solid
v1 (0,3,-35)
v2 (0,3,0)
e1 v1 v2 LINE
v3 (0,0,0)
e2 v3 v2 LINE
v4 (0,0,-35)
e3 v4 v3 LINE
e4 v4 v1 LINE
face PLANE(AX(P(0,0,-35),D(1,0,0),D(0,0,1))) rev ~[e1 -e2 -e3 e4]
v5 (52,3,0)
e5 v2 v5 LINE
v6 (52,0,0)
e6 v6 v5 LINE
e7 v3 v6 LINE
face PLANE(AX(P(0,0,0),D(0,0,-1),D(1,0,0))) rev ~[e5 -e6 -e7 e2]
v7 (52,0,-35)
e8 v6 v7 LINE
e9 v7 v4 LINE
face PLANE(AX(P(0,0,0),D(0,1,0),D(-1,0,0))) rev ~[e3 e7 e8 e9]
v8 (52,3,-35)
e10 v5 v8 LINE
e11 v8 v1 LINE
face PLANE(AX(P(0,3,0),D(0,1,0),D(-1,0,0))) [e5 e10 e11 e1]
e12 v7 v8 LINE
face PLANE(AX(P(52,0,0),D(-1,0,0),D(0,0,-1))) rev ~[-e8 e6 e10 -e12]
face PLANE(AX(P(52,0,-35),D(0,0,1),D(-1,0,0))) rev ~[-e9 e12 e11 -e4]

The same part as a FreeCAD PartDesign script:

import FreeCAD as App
import Part
import Sketcher
from FreeCAD import Vector


def add_polygon(sketch, points):
    """Adds a closed chain of lines whose ends are joined by coincident constraints."""
    first, n = sketch.GeometryCount, len(points)
    for a, b in zip(points, points[1:] + points[:1]):
        sketch.addGeometry(Part.LineSegment(App.Vector(*a, 0), App.Vector(*b, 0)), False)
    for i in range(n):
        sketch.addConstraint(Sketcher.Constraint("Coincident", first + i, 2, first + (i + 1) % n, 1))

doc = App.newDocument("Part")
body = doc.addObject("PartDesign::Body", "Body")

sketch1 = body.newObject("Sketcher::SketchObject", "Sketch")
sketch1.AttachmentSupport = (doc.getObject("XZ_Plane"), [""])
sketch1.MapMode = "FlatFace"
add_polygon(sketch1, [(0, -35), (0, 0), (52, 0), (52, -35)])
sketch1.addConstraint([
    Sketcher.Constraint("Vertical", 0),
    Sketcher.Constraint("Horizontal", 1),
    Sketcher.Constraint("Vertical", 2),
    Sketcher.Constraint("Horizontal", 3),
    Sketcher.Constraint("Coincident", 0, 2, -1, 1),
    Sketcher.Constraint("DistanceX", 1, 1, 1, 2, 52.0),
    Sketcher.Constraint("DistanceY", 0, 1, 0, 2, 35.0),
])
pad1 = body.newObject("PartDesign::Pad", "Pad")
pad1.Profile = sketch1
pad1.Length = 3
pad1.Reversed = True

doc.recompute()
